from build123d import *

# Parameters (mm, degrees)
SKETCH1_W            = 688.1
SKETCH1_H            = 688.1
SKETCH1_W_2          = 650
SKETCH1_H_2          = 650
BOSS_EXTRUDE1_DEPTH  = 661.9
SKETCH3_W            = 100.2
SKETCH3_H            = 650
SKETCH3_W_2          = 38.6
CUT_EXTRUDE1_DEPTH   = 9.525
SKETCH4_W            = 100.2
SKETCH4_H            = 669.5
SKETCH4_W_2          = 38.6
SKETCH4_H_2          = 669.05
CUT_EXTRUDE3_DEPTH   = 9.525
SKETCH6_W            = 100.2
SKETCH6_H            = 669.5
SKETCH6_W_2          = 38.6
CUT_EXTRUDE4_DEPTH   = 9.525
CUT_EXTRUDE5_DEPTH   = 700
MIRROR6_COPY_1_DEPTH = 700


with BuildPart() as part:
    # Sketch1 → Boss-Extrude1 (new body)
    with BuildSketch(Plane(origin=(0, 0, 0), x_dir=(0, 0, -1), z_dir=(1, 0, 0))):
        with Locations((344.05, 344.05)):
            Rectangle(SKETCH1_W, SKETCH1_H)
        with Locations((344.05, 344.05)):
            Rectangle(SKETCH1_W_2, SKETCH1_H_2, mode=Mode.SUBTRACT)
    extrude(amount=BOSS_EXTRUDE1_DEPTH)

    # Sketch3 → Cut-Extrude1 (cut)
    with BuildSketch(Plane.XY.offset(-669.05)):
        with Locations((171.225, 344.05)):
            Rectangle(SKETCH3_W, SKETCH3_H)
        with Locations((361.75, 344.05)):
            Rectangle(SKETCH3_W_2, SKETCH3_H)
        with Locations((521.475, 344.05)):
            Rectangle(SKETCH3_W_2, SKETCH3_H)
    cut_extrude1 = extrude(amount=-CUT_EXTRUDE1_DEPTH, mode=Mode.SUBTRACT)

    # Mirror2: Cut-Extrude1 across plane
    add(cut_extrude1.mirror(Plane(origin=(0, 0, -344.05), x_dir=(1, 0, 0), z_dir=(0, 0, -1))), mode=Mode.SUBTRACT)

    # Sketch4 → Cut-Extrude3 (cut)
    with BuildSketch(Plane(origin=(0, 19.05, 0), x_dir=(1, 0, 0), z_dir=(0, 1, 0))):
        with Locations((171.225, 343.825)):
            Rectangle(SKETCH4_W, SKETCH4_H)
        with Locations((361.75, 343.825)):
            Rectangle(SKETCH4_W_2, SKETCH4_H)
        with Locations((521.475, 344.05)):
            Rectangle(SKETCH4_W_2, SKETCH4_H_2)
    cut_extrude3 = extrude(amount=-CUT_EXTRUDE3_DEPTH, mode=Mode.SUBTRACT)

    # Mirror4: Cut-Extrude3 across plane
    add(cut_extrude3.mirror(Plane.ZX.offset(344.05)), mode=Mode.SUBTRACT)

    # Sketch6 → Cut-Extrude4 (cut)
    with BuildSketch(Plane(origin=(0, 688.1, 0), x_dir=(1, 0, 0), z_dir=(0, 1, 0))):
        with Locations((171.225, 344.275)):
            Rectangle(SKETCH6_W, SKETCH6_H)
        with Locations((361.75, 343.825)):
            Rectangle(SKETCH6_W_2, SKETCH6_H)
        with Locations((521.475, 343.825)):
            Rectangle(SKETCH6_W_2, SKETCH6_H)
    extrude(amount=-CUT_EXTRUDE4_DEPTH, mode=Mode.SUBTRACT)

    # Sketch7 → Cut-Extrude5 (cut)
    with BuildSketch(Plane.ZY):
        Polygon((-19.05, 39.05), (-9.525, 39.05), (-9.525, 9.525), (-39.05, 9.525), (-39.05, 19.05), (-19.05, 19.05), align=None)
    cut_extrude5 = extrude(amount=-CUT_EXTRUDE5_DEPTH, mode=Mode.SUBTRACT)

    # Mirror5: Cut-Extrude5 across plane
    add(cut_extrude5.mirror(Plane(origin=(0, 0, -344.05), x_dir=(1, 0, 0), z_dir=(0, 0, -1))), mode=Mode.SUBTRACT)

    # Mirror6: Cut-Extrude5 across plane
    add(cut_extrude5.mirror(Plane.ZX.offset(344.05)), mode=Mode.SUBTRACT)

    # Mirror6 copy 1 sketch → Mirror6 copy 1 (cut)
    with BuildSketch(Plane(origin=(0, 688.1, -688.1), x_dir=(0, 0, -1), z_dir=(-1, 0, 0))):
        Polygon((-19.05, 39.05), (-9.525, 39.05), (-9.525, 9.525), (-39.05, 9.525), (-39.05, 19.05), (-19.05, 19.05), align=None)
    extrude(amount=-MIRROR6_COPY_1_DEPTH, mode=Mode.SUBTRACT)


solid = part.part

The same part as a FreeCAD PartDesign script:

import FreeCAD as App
import Part
import Sketcher

V = App.Vector
Q = App.Units.Quantity

doc = App.newDocument("Part")
body = doc.addObject("PartDesign::Body", "Body")

# Sketch on YZ plane
sketch1 = doc.addObject("Sketcher::SketchObject", "Sketch")
body.addObject(sketch1)
sketch1.AttachmentSupport = (doc.YZ_Plane, [""])
sketch1.MapMode = "FlatFace"
sketch1.addGeometry(Part.LineSegment(V(688, 0, 0), V(0, 0, 0)), False)
sketch1.addGeometry(Part.LineSegment(V(0, 0, 0), V(0, -688, 0)), False)
sketch1.addGeometry(Part.LineSegment(V(0, -688, 0), V(688, -688, 0)), False)
sketch1.addGeometry(Part.LineSegment(V(688, -688, 0), V(688, 0, 0)), False)
sketch1.addGeometry(Part.LineSegment(V(19, -669, 0), V(19, -19, 0)), False)
sketch1.addGeometry(Part.LineSegment(V(19, -19, 0), V(669, -19, 0)), False)
sketch1.addGeometry(Part.LineSegment(V(669, -19, 0), V(669, -669, 0)), False)
sketch1.addGeometry(Part.LineSegment(V(669, -669, 0), V(19, -669, 0)), False)
sketch1.addConstraint(Sketcher.Constraint("Coincident", 0, 2, 1, 1))
sketch1.addConstraint(Sketcher.Constraint("Coincident", 1, 2, 2, 1))
sketch1.addConstraint(Sketcher.Constraint("Coincident", 2, 2, 3, 1))
sketch1.addConstraint(Sketcher.Constraint("Coincident", 3, 2, 0, 1))
sketch1.addConstraint(Sketcher.Constraint("Coincident", 4, 2, 5, 1))
sketch1.addConstraint(Sketcher.Constraint("Coincident", 5, 2, 6, 1))
sketch1.addConstraint(Sketcher.Constraint("Coincident", 6, 2, 7, 1))
sketch1.addConstraint(Sketcher.Constraint("Coincident", 7, 2, 4, 1))
sketch1.addConstraint(Sketcher.Constraint("Horizontal", 0))
sketch1.addConstraint(Sketcher.Constraint("Vertical", 1))
sketch1.addConstraint(Sketcher.Constraint("Horizontal", 2))
sketch1.addConstraint(Sketcher.Constraint("Vertical", 3))
sketch1.addConstraint(Sketcher.Constraint("Vertical", 4))
sketch1.addConstraint(Sketcher.Constraint("Horizontal", 5))
sketch1.addConstraint(Sketcher.Constraint("Vertical", 6))
sketch1.addConstraint(Sketcher.Constraint("Horizontal", 7))
sketch1.addConstraint(Sketcher.Constraint("Coincident", 0, 2, -1, 1))
sketch1.addConstraint(Sketcher.Constraint("Equal", 2, 1))
sketch1.addConstraint(Sketcher.Constraint("Equal", 7, 4))
sketch1.addConstraint(Sketcher.Constraint("DistanceX", 5, 1, 5, 2, Q("650 mm")))
sketch1.addConstraint(Sketcher.Constraint("DistanceX", 0, 2, 0, 1, Q("688.1 mm")))
sketch1.addConstraint(Sketcher.Constraint("DistanceX", -1, 1, 4, 2, Q("19.05 mm")))
sketch1.addConstraint(Sketcher.Constraint("DistanceY", 4, 2, -1, 1, Q("19.05 mm")))
pad1 = doc.addObject("PartDesign::Pad", "Pad")
body.addObject(pad1)
pad1.Profile = sketch1
pad1.Length = 661.9

# Sketch on XY plane
sketch2 = doc.addObject("Sketcher::SketchObject", "Sketch001")
body.addObject(sketch2)
sketch2.AttachmentSupport = (doc.XY_Plane, [""])
sketch2.MapMode = "FlatFace"
sketch2.AttachmentOffset = App.Placement(V(0, 0, -669.05), App.Rotation())
sketch2.addGeometry(Part.LineSegment(V(121, 669, 0), V(121, 19, 0)), False)
sketch2.addGeometry(Part.LineSegment(V(121, 19, 0), V(221, 19, 0)), False)
sketch2.addGeometry(Part.LineSegment(V(221, 19, 0), V(221, 669, 0)), False)
sketch2.addGeometry(Part.LineSegment(V(221, 669, 0), V(121, 669, 0)), False)
sketch2.addGeometry(Part.LineSegment(V(342, 669, 0), V(342, 19, 0)), False)
sketch2.addGeometry(Part.LineSegment(V(342, 19, 0), V(381, 19, 0)), False)
sketch2.addGeometry(Part.LineSegment(V(381, 19, 0), V(381, 669, 0)), False)
sketch2.addGeometry(Part.LineSegment(V(381, 669, 0), V(342, 669, 0)), False)
sketch2.addGeometry(Part.LineSegment(V(502, 669, 0), V(502, 19, 0)), False)
sketch2.addGeometry(Part.LineSegment(V(502, 19, 0), V(541, 19, 0)), False)
sketch2.addGeometry(Part.LineSegment(V(541, 19, 0), V(541, 669, 0)), False)
sketch2.addGeometry(Part.LineSegment(V(541, 669, 0), V(502, 669, 0)), False)
sketch2.addConstraint(Sketcher.Constraint("Coincident", 0, 2, 1, 1))
sketch2.addConstraint(Sketcher.Constraint("Coincident", 1, 2, 2, 1))
sketch2.addConstraint(Sketcher.Constraint("Coincident", 2, 2, 3, 1))
sketch2.addConstraint(Sketcher.Constraint("Coincident", 3, 2, 0, 1))
sketch2.addConstraint(Sketcher.Constraint("Coincident", 4, 2, 5, 1))
sketch2.addConstraint(Sketcher.Constraint("Coincident", 5, 2, 6, 1))
sketch2.addConstraint(Sketcher.Constraint("Coincident", 6, 2, 7, 1))
sketch2.addConstraint(Sketcher.Constraint("Coincident", 7, 2, 4, 1))
sketch2.addConstraint(Sketcher.Constraint("Coincident", 8, 2, 9, 1))
sketch2.addConstraint(Sketcher.Constraint("Coincident", 9, 2, 10, 1))
sketch2.addConstraint(Sketcher.Constraint("Coincident", 10, 2, 11, 1))
sketch2.addConstraint(Sketcher.Constraint("Coincident", 11, 2, 8, 1))
sketch2.addConstraint(Sketcher.Constraint("Vertical", 0))
sketch2.addConstraint(Sketcher.Constraint("Horizontal", 1))
sketch2.addConstraint(Sketcher.Constraint("Vertical", 2))
sketch2.addConstraint(Sketcher.Constraint("Horizontal", 3))
sketch2.addConstraint(Sketcher.Constraint("Vertical", 4))
sketch2.addConstraint(Sketcher.Constraint("Horizontal", 5))
sketch2.addConstraint(Sketcher.Constraint("Vertical", 6))
sketch2.addConstraint(Sketcher.Constraint("Horizontal", 7))
sketch2.addConstraint(Sketcher.Constraint("Vertical", 8))
sketch2.addConstraint(Sketcher.Constraint("Horizontal", 9))
sketch2.addConstraint(Sketcher.Constraint("Vertical", 10))
sketch2.addConstraint(Sketcher.Constraint("Horizontal", 11))
sketch2.addConstraint(Sketcher.Constraint("Horizontal", 1, 2, 4, 2))
sketch2.addConstraint(Sketcher.Constraint("Horizontal", 3, 2, 6, 2))
sketch2.addConstraint(Sketcher.Constraint("Horizontal", 5, 2, 8, 2))
sketch2.addConstraint(Sketcher.Constraint("Horizontal", 7, 2, 10, 2))
sketch2.addConstraint(Sketcher.Constraint("Equal", 7, 9))
sketch2.addConstraint(Sketcher.Constraint("DistanceY", 0, 2, 0, 1, Q("650 mm")))
sketch2.addConstraint(Sketcher.Constraint("DistanceX", 1, 1, 1, 2, Q("100.2 mm")))
sketch2.addConstraint(Sketcher.Constraint("DistanceX", 5, 1, 5, 2, Q("38.6 mm")))
sketch2.addConstraint(Sketcher.Constraint("DistanceY", -1, 1, 0, 2, Q("19.05 mm")))
sketch2.addConstraint(Sketcher.Constraint("DistanceX", -1, 1, 4, 2, Q("342.45 mm")))
sketch2.addConstraint(Sketcher.Constraint("DistanceX", 1, 2, 8, 2, Q("280.85 mm")))
sketch2.addConstraint(Sketcher.Constraint("DistanceX", -1, 1, 0, 2, Q("121.125 mm")))
pocket1 = doc.addObject("PartDesign::Pocket", "Pocket")
body.addObject(pocket1)
pocket1.Profile = sketch2
pocket1.Length = 9.525
doc.recompute()

datumplane = doc.addObject("PartDesign::Plane", "DatumPlane")
body.addObject(datumplane)
datumplane.AttachmentSupport = (doc.XY_Plane, [""])
datumplane.MapMode = "FlatFace"
datumplane.AttachmentOffset = App.Placement(V(0, 0, -344.05), App.Rotation())
mirrored = doc.addObject("PartDesign::Mirrored", "Mirrored")
body.addObject(mirrored)
mirrored.Originals = [pocket1]
mirrored.MirrorPlane = (datumplane, [""])
body.Tip = mirrored

# Sketch on XZ plane
sketch3 = doc.addObject("Sketcher::SketchObject", "Sketch002")
body.addObject(sketch3)
sketch3.AttachmentSupport = (doc.XZ_Plane, [""])
sketch3.MapMode = "FlatFace"
sketch3.AttachmentOffset = App.Placement(V(0, 0, -19.05), App.Rotation())
sketch3.addGeometry(Part.LineSegment(V(121, -679, 0), V(121, -9, 0)), False)
sketch3.addGeometry(Part.LineSegment(V(121, -9, 0), V(221, -9, 0)), False)
sketch3.addGeometry(Part.LineSegment(V(221, -9, 0), V(221, -679, 0)), False)
sketch3.addGeometry(Part.LineSegment(V(221, -679, 0), V(121, -679, 0)), False)
sketch3.addGeometry(Part.LineSegment(V(342, -679, 0), V(342, -9, 0)), False)
sketch3.addGeometry(Part.LineSegment(V(342, -9, 0), V(381, -9, 0)), False)
sketch3.addGeometry(Part.LineSegment(V(381, -9, 0), V(381, -679, 0)), False)
sketch3.addGeometry(Part.LineSegment(V(381, -679, 0), V(342, -679, 0)), False)
sketch3.addGeometry(Part.LineSegment(V(502, -679, 0), V(502, -10, 0)), False)
sketch3.addGeometry(Part.LineSegment(V(502, -10, 0), V(541, -10, 0)), False)
sketch3.addGeometry(Part.LineSegment(V(541, -10, 0), V(541, -679, 0)), False)
sketch3.addGeometry(Part.LineSegment(V(541, -679, 0), V(502, -679, 0)), False)
sketch3.addConstraint(Sketcher.Constraint("Coincident", 0, 2, 1, 1))
sketch3.addConstraint(Sketcher.Constraint("Coincident", 1, 2, 2, 1))
sketch3.addConstraint(Sketcher.Constraint("Coincident", 2, 2, 3, 1))
sketch3.addConstraint(Sketcher.Constraint("Coincident", 3, 2, 0, 1))
sketch3.addConstraint(Sketcher.Constraint("Coincident", 4, 2, 5, 1))
sketch3.addConstraint(Sketcher.Constraint("Coincident", 5, 2, 6, 1))
sketch3.addConstraint(Sketcher.Constraint("Coincident", 6, 2, 7, 1))
sketch3.addConstraint(Sketcher.Constraint("Coincident", 7, 2, 4, 1))
sketch3.addConstraint(Sketcher.Constraint("Coincident", 8, 2, 9, 1))
sketch3.addConstraint(Sketcher.Constraint("Coincident", 9, 2, 10, 1))
sketch3.addConstraint(Sketcher.Constraint("Coincident", 10, 2, 11, 1))
sketch3.addConstraint(Sketcher.Constraint("Coincident", 11, 2, 8, 1))
sketch3.addConstraint(Sketcher.Constraint("Vertical", 0))
sketch3.addConstraint(Sketcher.Constraint("Horizontal", 1))
sketch3.addConstraint(Sketcher.Constraint("Vertical", 2))
sketch3.addConstraint(Sketcher.Constraint("Horizontal", 3))
sketch3.addConstraint(Sketcher.Constraint("Vertical", 4))
sketch3.addConstraint(Sketcher.Constraint("Horizontal", 5))
sketch3.addConstraint(Sketcher.Constraint("Vertical", 6))
sketch3.addConstraint(Sketcher.Constraint("Horizontal", 7))
sketch3.addConstraint(Sketcher.Constraint("Vertical", 8))
sketch3.addConstraint(Sketcher.Constraint("Horizontal", 9))
sketch3.addConstraint(Sketcher.Constraint("Vertical", 10))
sketch3.addConstraint(Sketcher.Constraint("Horizontal", 11))
sketch3.addConstraint(Sketcher.Constraint("Horizontal", 1, 2, 4, 2))
sketch3.addConstraint(Sketcher.Constraint("Horizontal", 3, 2, 6, 2))
sketch3.addConstraint(Sketcher.Constraint("Horizontal", 7, 2, 10, 2))
sketch3.addConstraint(Sketcher.Constraint("Equal", 7, 9))
sketch3.addConstraint(Sketcher.Constraint("DistanceX", 1, 1, 1, 2, Q("100.2 mm")))
sketch3.addConstraint(Sketcher.Constraint("DistanceX", 5, 1, 5, 2, Q("38.6 mm")))
sketch3.addConstraint(Sketcher.Constraint("DistanceY", 0, 1, 0, 2, Q("669.5 mm")))
sketch3.addConstraint(Sketcher.Constraint("DistanceY", 8, 1, 8, 2, Q("669.05 mm")))
sketch3.addConstraint(Sketcher.Constraint("DistanceX", -1, 1, 4, 2, Q("342.45 mm")))
sketch3.addConstraint(Sketcher.Constraint("DistanceX", 1, 2, 8, 2, Q("280.85 mm")))
sketch3.addConstraint(Sketcher.Constraint("DistanceX", -1, 1, 0, 2, Q("121.125 mm")))
sketch3.addConstraint(Sketcher.Constraint("DistanceY", 0, 2, -1, 1, Q("9.075 mm")))
pocket2 = doc.addObject("PartDesign::Pocket", "Pocket001")
body.addObject(pocket2)
pocket2.Profile = sketch3
pocket2.Length = 9.525
pocket2.Reversed = True
doc.recompute()

datumplane2 = doc.addObject("PartDesign::Plane", "DatumPlane001")
body.addObject(datumplane2)
datumplane2.AttachmentSupport = (doc.XZ_Plane, [""])
datumplane2.MapMode = "FlatFace"
datumplane2.AttachmentOffset = App.Placement(V(0, 0, -344.05), App.Rotation())
mirrored2 = doc.addObject("PartDesign::Mirrored", "Mirrored001")
body.addObject(mirrored2)
mirrored2.Originals = [pocket2]
mirrored2.MirrorPlane = (datumplane2, [""])
body.Tip = mirrored2

# Sketch on XZ plane
sketch4 = doc.addObject("Sketcher::SketchObject", "Sketch003")
body.addObject(sketch4)
sketch4.AttachmentSupport = (doc.XZ_Plane, [""])
sketch4.MapMode = "FlatFace"
sketch4.AttachmentOffset = App.Placement(V(0, 0, -688.1), App.Rotation())
sketch4.addGeometry(Part.LineSegment(V(121, -679, 0), V(121, -10, 0)), False)
sketch4.addGeometry(Part.LineSegment(V(121, -10, 0), V(221, -10, 0)), False)
sketch4.addGeometry(Part.LineSegment(V(221, -10, 0), V(221, -679, 0)), False)
sketch4.addGeometry(Part.LineSegment(V(221, -679, 0), V(121, -679, 0)), False)
sketch4.addGeometry(Part.LineSegment(V(342, -679, 0), V(342, -9, 0)), False)
sketch4.addGeometry(Part.LineSegment(V(342, -9, 0), V(381, -9, 0)), False)
sketch4.addGeometry(Part.LineSegment(V(381, -9, 0), V(381, -679, 0)), False)
sketch4.addGeometry(Part.LineSegment(V(381, -679, 0), V(342, -679, 0)), False)
sketch4.addGeometry(Part.LineSegment(V(502, -679, 0), V(502, -9, 0)), False)
sketch4.addGeometry(Part.LineSegment(V(502, -9, 0), V(541, -9, 0)), False)
sketch4.addGeometry(Part.LineSegment(V(541, -9, 0), V(541, -679, 0)), False)
sketch4.addGeometry(Part.LineSegment(V(541, -679, 0), V(502, -679, 0)), False)
sketch4.addConstraint(Sketcher.Constraint("Coincident", 0, 2, 1, 1))
sketch4.addConstraint(Sketcher.Constraint("Coincident", 1, 2, 2, 1))
sketch4.addConstraint(Sketcher.Constraint("Coincident", 2, 2, 3, 1))
sketch4.addConstraint(Sketcher.Constraint("Coincident", 3, 2, 0, 1))
sketch4.addConstraint(Sketcher.Constraint("Coincident", 4, 2, 5, 1))
sketch4.addConstraint(Sketcher.Constraint("Coincident", 5, 2, 6, 1))
sketch4.addConstraint(Sketcher.Constraint("Coincident", 6, 2, 7, 1))
sketch4.addConstraint(Sketcher.Constraint("Coincident", 7, 2, 4, 1))
sketch4.addConstraint(Sketcher.Constraint("Coincident", 8, 2, 9, 1))
sketch4.addConstraint(Sketcher.Constraint("Coincident", 9, 2, 10, 1))
sketch4.addConstraint(Sketcher.Constraint("Coincident", 10, 2, 11, 1))
sketch4.addConstraint(Sketcher.Constraint("Coincident", 11, 2, 8, 1))
sketch4.addConstraint(Sketcher.Constraint("Vertical", 0))
sketch4.addConstraint(Sketcher.Constraint("Horizontal", 1))
sketch4.addConstraint(Sketcher.Constraint("Vertical", 2))
sketch4.addConstraint(Sketcher.Constraint("Horizontal", 3))
sketch4.addConstraint(Sketcher.Constraint("Vertical", 4))
sketch4.addConstraint(Sketcher.Constraint("Horizontal", 5))
sketch4.addConstraint(Sketcher.Constraint("Vertical", 6))
sketch4.addConstraint(Sketcher.Constraint("Horizontal", 7))
sketch4.addConstraint(Sketcher.Constraint("Vertical", 8))
sketch4.addConstraint(Sketcher.Constraint("Horizontal", 9))
sketch4.addConstraint(Sketcher.Constraint("Vertical", 10))
sketch4.addConstraint(Sketcher.Constraint("Horizontal", 11))
sketch4.addConstraint(Sketcher.Constraint("Horizontal", 5, 2, 8, 2))
sketch4.addConstraint(Sketcher.Constraint("Horizontal", 7, 2, 10, 2))
sketch4.addConstraint(Sketcher.Constraint("Equal", 7, 9))
sketch4.addConstraint(Sketcher.Constraint("Equal", 2, 4))
sketch4.addConstraint(Sketcher.Constraint("DistanceX", 1, 1, 1, 2, Q("100.2 mm")))
sketch4.addConstraint(Sketcher.Constraint("DistanceX", 5, 1, 5, 2, Q("38.6 mm")))
sketch4.addConstraint(Sketcher.Constraint("DistanceY", 0, 1, 0, 2, Q("669.5 mm")))
sketch4.addConstraint(Sketcher.Constraint("DistanceX", -1, 1, 4, 2, Q("342.45 mm")))
sketch4.addConstraint(Sketcher.Constraint("DistanceY", 1, 2, 4, 2, Q("0.45 mm")))
sketch4.addConstraint(Sketcher.Constraint("DistanceX", 1, 2, 8, 2, Q("280.85 mm")))
sketch4.addConstraint(Sketcher.Constraint("DistanceX", -1, 1, 0, 2, Q("121.125 mm")))
sketch4.addConstraint(Sketcher.Constraint("DistanceY", 0, 2, -1, 1, Q("9.525 mm")))
pocket3 = doc.addObject("PartDesign::Pocket", "Pocket002")
body.addObject(pocket3)
pocket3.Profile = sketch4
pocket3.Length = 9.525
pocket3.Reversed = True

# Sketch on YZ plane
sketch5 = doc.addObject("Sketcher::SketchObject", "Sketch004")
body.addObject(sketch5)
sketch5.AttachmentSupport = (doc.YZ_Plane, [""])
sketch5.MapMode = "FlatFace"
sketch5.addGeometry(Part.LineSegment(V(39, -10, 0), V(39, -19, 0)), False)
sketch5.addGeometry(Part.LineSegment(V(39, -19, 0), V(19, -19, 0)), False)
sketch5.addGeometry(Part.LineSegment(V(19, -19, 0), V(19, -39, 0)), False)
sketch5.addGeometry(Part.LineSegment(V(19, -39, 0), V(10, -39, 0)), False)
sketch5.addGeometry(Part.LineSegment(V(10, -39, 0), V(10, -10, 0)), False)
sketch5.addGeometry(Part.LineSegment(V(10, -10, 0), V(39, -10, 0)), False)
sketch5.addConstraint(Sketcher.Constraint("Coincident", 0, 2, 1, 1))
sketch5.addConstraint(Sketcher.Constraint("Coincident", 1, 2, 2, 1))
sketch5.addConstraint(Sketcher.Constraint("Coincident", 2, 2, 3, 1))
sketch5.addConstraint(Sketcher.Constraint("Coincident", 3, 2, 4, 1))
sketch5.addConstraint(Sketcher.Constraint("Coincident", 4, 2, 5, 1))
sketch5.addConstraint(Sketcher.Constraint("Coincident", 5, 2, 0, 1))
sketch5.addConstraint(Sketcher.Constraint("Vertical", 0))
sketch5.addConstraint(Sketcher.Constraint("Horizontal", 1))
sketch5.addConstraint(Sketcher.Constraint("Vertical", 2))
sketch5.addConstraint(Sketcher.Constraint("Horizontal", 3))
sketch5.addConstraint(Sketcher.Constraint("Vertical", 4))
sketch5.addConstraint(Sketcher.Constraint("Horizontal", 5))
sketch5.addConstraint(Sketcher.Constraint("Equal", 3, 0))
sketch5.addConstraint(Sketcher.Constraint("Equal", 1, 2))
sketch5.addConstraint(Sketcher.Constraint("DistanceX", 1, 2, 1, 1, Q("20 mm")))
sketch5.addConstraint(Sketcher.Constraint("DistanceX", 3, 2, 3, 1, Q("9.525 mm")))
sketch5.addConstraint(Sketcher.Constraint("DistanceX", -1, 1, 0, 2, Q("39.05 mm")))
sketch5.addConstraint(Sketcher.Constraint("DistanceY", 0, 2, -1, 1, Q("19.05 mm")))
pocket4 = doc.addObject("PartDesign::Pocket", "Pocket003")
body.addObject(pocket4)
pocket4.Profile = sketch5
pocket4.Length = 700
pocket4.Reversed = True
doc.recompute()

datumplane3 = doc.addObject("PartDesign::Plane", "DatumPlane002")
body.addObject(datumplane3)
datumplane3.AttachmentSupport = (doc.XY_Plane, [""])
datumplane3.MapMode = "FlatFace"
datumplane3.AttachmentOffset = App.Placement(V(0, 0, -344.05), App.Rotation())
mirrored3 = doc.addObject("PartDesign::Mirrored", "Mirrored002")
body.addObject(mirrored3)
mirrored3.Originals = [pocket4]
mirrored3.MirrorPlane = (datumplane3, [""])
body.Tip = mirrored3
doc.recompute()

datumplane4 = doc.addObject("PartDesign::Plane", "DatumPlane003")
body.addObject(datumplane4)
datumplane4.AttachmentSupport = (doc.XZ_Plane, [""])
datumplane4.MapMode = "FlatFace"
datumplane4.AttachmentOffset = App.Placement(V(0, 0, -344.05), App.Rotation())
mirrored4 = doc.addObject("PartDesign::Mirrored", "Mirrored003")
body.addObject(mirrored4)
mirrored4.Originals = [pocket4]
mirrored4.MirrorPlane = (datumplane4, [""])
body.Tip = mirrored4

# Sketch on YZ plane
sketch6 = doc.addObject("Sketcher::SketchObject", "Sketch005")
body.addObject(sketch6)
sketch6.AttachmentSupport = (doc.YZ_Plane, [""])
sketch6.MapMode = "FlatFace"
sketch6.addGeometry(Part.LineSegment(V(649, -679, 0), V(649, -669, 0)), False)
sketch6.addGeometry(Part.LineSegment(V(649, -669, 0), V(669, -669, 0)), False)
sketch6.addGeometry(Part.LineSegment(V(669, -669, 0), V(669, -649, 0)), False)
sketch6.addGeometry(Part.LineSegment(V(669, -649, 0), V(679, -649, 0)), False)
sketch6.addGeometry(Part.LineSegment(V(679, -649, 0), V(679, -679, 0)), False)
sketch6.addGeometry(Part.LineSegment(V(679, -679, 0), V(649, -679, 0)), False)
sketch6.addConstraint(Sketcher.Constraint("Coincident", 0, 2, 1, 1))
sketch6.addConstraint(Sketcher.Constraint("Coincident", 1, 2, 2, 1))
sketch6.addConstraint(Sketcher.Constraint("Coincident", 2, 2, 3, 1))
sketch6.addConstraint(Sketcher.Constraint("Coincident", 3, 2, 4, 1))
sketch6.addConstraint(Sketcher.Constraint("Coincident", 4, 2, 5, 1))
sketch6.addConstraint(Sketcher.Constraint("Coincident", 5, 2, 0, 1))
sketch6.addConstraint(Sketcher.Constraint("Vertical", 0))
sketch6.addConstraint(Sketcher.Constraint("Horizontal", 1))
sketch6.addConstraint(Sketcher.Constraint("Vertical", 2))
sketch6.addConstraint(Sketcher.Constraint("Horizontal", 3))
sketch6.addConstraint(Sketcher.Constraint("Vertical", 4))
sketch6.addConstraint(Sketcher.Constraint("Horizontal", 5))
sketch6.addConstraint(Sketcher.Constraint("Equal", 3, 0))
sketch6.addConstraint(Sketcher.Constraint("Equal", 1, 2))
sketch6.addConstraint(Sketcher.Constraint("DistanceX", 1, 1, 1, 2, Q("20 mm")))
sketch6.addConstraint(Sketcher.Constraint("DistanceX", 3, 1, 3, 2, Q("9.525 mm")))
sketch6.addConstraint(Sketcher.Constraint("DistanceX", -1, 1, 0, 2, Q("649.05 mm")))
sketch6.addConstraint(Sketcher.Constraint("DistanceY", 0, 2, -1, 1, Q("669.05 mm")))
pocket5 = doc.addObject("PartDesign::Pocket", "Pocket004")
body.addObject(pocket5)
pocket5.Profile = sketch6
pocket5.Length = 700
pocket5.Reversed = True

doc.recompute()
